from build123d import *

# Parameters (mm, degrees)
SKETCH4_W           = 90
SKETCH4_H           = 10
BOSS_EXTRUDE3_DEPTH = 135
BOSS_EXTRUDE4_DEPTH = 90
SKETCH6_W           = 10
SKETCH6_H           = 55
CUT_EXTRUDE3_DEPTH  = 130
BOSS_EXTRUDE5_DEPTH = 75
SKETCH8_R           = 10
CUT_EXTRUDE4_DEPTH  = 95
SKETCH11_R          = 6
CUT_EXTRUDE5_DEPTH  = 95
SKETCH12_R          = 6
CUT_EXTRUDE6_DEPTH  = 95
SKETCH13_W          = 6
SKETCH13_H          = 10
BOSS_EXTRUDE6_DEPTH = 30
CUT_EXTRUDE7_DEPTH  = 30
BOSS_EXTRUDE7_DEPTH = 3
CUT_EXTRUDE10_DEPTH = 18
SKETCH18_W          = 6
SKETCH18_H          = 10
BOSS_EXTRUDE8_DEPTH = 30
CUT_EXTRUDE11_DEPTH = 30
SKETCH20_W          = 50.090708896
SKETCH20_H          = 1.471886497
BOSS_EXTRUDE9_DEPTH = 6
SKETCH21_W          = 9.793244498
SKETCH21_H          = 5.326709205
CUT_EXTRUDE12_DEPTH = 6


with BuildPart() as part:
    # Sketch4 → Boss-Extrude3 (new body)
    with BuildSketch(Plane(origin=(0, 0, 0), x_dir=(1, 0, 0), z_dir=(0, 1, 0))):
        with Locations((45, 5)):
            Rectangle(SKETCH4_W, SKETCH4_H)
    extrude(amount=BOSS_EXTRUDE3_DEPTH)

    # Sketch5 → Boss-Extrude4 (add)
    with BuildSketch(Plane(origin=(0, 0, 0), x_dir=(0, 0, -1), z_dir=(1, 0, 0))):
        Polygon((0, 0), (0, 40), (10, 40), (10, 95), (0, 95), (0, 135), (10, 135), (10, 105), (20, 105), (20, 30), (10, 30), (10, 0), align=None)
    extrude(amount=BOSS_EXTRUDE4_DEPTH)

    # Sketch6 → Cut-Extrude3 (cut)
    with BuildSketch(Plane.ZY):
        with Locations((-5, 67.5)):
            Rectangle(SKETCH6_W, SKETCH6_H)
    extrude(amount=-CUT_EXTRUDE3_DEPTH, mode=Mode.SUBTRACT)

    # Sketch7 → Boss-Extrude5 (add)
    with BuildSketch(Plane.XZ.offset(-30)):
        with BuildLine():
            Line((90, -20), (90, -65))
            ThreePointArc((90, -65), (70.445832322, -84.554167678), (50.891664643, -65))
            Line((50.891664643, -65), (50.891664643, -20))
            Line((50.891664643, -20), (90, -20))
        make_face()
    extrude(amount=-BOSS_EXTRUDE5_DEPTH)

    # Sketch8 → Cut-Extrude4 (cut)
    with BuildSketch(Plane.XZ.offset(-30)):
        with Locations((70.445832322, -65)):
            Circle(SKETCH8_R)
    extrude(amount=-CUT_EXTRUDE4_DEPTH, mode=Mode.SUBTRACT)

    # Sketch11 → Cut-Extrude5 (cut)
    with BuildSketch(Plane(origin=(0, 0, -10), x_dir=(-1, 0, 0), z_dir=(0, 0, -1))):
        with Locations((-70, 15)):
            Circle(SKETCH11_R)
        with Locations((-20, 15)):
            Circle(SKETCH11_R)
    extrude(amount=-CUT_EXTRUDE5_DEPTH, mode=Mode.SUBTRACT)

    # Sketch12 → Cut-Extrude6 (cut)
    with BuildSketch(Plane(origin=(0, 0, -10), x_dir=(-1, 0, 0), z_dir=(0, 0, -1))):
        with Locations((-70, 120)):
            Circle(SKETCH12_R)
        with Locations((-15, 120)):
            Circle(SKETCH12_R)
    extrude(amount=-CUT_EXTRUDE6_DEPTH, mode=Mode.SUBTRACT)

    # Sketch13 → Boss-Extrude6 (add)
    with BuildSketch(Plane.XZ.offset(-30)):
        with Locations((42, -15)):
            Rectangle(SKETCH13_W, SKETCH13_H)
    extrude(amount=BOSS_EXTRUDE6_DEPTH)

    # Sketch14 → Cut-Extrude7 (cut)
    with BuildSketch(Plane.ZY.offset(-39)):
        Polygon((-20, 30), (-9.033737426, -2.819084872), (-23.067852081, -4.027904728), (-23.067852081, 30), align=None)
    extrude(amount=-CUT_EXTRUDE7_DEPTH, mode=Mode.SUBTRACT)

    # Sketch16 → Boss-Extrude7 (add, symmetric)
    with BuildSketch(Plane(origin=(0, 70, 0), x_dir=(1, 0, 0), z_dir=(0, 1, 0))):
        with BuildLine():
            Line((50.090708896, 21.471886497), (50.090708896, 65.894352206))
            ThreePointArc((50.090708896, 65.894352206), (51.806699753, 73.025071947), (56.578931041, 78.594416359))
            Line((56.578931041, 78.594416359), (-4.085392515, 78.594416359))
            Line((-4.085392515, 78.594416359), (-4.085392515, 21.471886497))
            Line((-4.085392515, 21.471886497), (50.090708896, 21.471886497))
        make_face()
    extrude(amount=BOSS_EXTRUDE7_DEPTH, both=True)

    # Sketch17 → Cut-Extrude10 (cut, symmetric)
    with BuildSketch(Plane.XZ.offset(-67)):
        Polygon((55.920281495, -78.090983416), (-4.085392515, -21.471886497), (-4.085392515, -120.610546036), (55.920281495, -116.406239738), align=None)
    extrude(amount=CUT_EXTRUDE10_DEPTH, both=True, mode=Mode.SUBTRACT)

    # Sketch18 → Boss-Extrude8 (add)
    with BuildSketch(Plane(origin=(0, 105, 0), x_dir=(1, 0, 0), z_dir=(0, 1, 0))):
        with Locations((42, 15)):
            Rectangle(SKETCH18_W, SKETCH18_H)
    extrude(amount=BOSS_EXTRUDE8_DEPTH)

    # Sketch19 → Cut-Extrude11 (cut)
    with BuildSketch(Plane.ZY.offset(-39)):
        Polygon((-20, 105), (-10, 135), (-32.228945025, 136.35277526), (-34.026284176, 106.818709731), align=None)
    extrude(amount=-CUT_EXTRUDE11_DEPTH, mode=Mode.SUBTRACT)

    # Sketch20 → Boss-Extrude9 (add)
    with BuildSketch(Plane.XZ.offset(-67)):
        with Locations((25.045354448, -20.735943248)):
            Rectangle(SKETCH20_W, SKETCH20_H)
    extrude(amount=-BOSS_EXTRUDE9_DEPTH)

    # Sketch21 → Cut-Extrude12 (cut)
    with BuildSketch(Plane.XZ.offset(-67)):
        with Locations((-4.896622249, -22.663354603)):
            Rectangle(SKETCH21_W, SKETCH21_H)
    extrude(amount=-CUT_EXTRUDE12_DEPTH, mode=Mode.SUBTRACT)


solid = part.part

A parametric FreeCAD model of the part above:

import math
import FreeCAD as App
import Part
import Sketcher
from FreeCAD import Vector

doc = App.newDocument("Part")
params = doc.addObject("Spreadsheet::Sheet", "Params")
for row, (alias, value) in enumerate([
    ("sketch1_width", "90 mm"),
    ("sketch1_height", "10 mm"),
    ("pad1_length", "135 mm"),
    ("sketch2_width", "40 mm"),
    ("sketch2_width2", "30 mm"),
    ("sketch2_width3", "75 mm"),
    ("sketch2_height", "10 mm"),
    ("pad2_length", "90 mm"),
    ("sketch3_width", "55 mm"),
    ("sketch3_height", "10 mm"),
    ("pocket1_length", "130 mm"),
    ("sketch4_height", "45 mm"),
    ("pad3_length", "75 mm"),
    ("sketch5_diameter", "20 mm"),
    ("pocket2_length", "95 mm"),
    ("sketch6_diameter", "12 mm"),
    ("pocket3_length", "95 mm"),
    ("sketch7_diameter", "12 mm"),
    ("pocket4_length", "95 mm"),
    ("sketch8_width", "6 mm"),
    ("sketch8_height", "10 mm"),
    ("pad4_length", "30 mm"),
    ("pocket5_length", "30 mm"),
    ("pad5_length", "6 mm"),
    ("pocket6_length", "36 mm"),
    ("sketch12_width", "6 mm"),
    ("sketch12_height", "10 mm"),
    ("pad6_length", "30 mm"),
    ("pocket7_length", "30 mm"),
    ("pad7_length", "6 mm"),
    ("pocket8_length", "6 mm"),
], start=1):
    params.set(f"A{row}", alias)
    params.set(f"B{row}", "=" + value)
    params.setAlias(f"B{row}", alias)

body = doc.addObject("PartDesign::Body", "Body")
body.AllowCompound = True

sketch1 = doc.addObject("Sketcher::SketchObject", "Sketch")
body.addObject(sketch1)
sketch1.AttachmentSupport = (doc.XZ_Plane, [""])
sketch1.MapMode = "FlatFace"
sketch1.addGeometry([
    Part.LineSegment(Vector(0, -10, 0), Vector(0, 0, 0)),
    Part.LineSegment(Vector(0, 0, 0), Vector(90, 0, 0)),
    Part.LineSegment(Vector(90, 0, 0), Vector(90, -10, 0)),
    Part.LineSegment(Vector(90, -10, 0), Vector(0, -10, 0)),
], False)
sketch1.addConstraint([
    Sketcher.Constraint("Coincident", 0, 2, 1, 1),
    Sketcher.Constraint("Coincident", 1, 2, 2, 1),
    Sketcher.Constraint("Coincident", 2, 2, 3, 1),
    Sketcher.Constraint("Coincident", 3, 2, 0, 1),
    Sketcher.Constraint("Vertical", 0),
    Sketcher.Constraint("Horizontal", 1),
    Sketcher.Constraint("Vertical", 2),
    Sketcher.Constraint("Horizontal", 3),
    Sketcher.Constraint("Coincident", 0, 2, -1, 1),
    Sketcher.Constraint("DistanceX", 1, 1, 1, 2, 90.0),
    Sketcher.Constraint("DistanceY", 0, 1, 0, 2, 10.0),
])
sketch1.setExpression("Constraints[9]", "Params.sketch1_width")
sketch1.setExpression("Constraints[10]", "Params.sketch1_height")
pad1 = doc.addObject("PartDesign::Pad", "Pad")
body.addObject(pad1)
pad1.Profile = sketch1
pad1.setExpression("Length", "Params.pad1_length")
pad1.Reversed = True

sketch2 = doc.addObject("Sketcher::SketchObject", "Sketch001")
body.addObject(sketch2)
sketch2.AttachmentSupport = (doc.YZ_Plane, [""])
sketch2.MapMode = "FlatFace"
sketch2.addGeometry([
    Part.LineSegment(Vector(40, 0, 0), Vector(0, 0, 0)),
    Part.LineSegment(Vector(0, 0, 0), Vector(0, -10, 0)),
    Part.LineSegment(Vector(0, -10, 0), Vector(30, -10, 0)),
    Part.LineSegment(Vector(30, -10, 0), Vector(30, -20, 0)),
    Part.LineSegment(Vector(30, -20, 0), Vector(105, -20, 0)),
    Part.LineSegment(Vector(105, -20, 0), Vector(105, -10, 0)),
    Part.LineSegment(Vector(105, -10, 0), Vector(135, -10, 0)),
    Part.LineSegment(Vector(135, -10, 0), Vector(135, 0, 0)),
    Part.LineSegment(Vector(135, 0, 0), Vector(95, 0, 0)),
    Part.LineSegment(Vector(95, 0, 0), Vector(95, -10, 0)),
    Part.LineSegment(Vector(95, -10, 0), Vector(40, -10, 0)),
    Part.LineSegment(Vector(40, -10, 0), Vector(40, 0, 0)),
], False)
sketch2.addConstraint([
    Sketcher.Constraint("Coincident", 0, 2, 1, 1),
    Sketcher.Constraint("Coincident", 1, 2, 2, 1),
    Sketcher.Constraint("Coincident", 2, 2, 3, 1),
    Sketcher.Constraint("Coincident", 3, 2, 4, 1),
    Sketcher.Constraint("Coincident", 4, 2, 5, 1),
    Sketcher.Constraint("Coincident", 5, 2, 6, 1),
    Sketcher.Constraint("Coincident", 6, 2, 7, 1),
    Sketcher.Constraint("Coincident", 7, 2, 8, 1),
    Sketcher.Constraint("Coincident", 8, 2, 9, 1),
    Sketcher.Constraint("Coincident", 9, 2, 10, 1),
    Sketcher.Constraint("Coincident", 10, 2, 11, 1),
    Sketcher.Constraint("Coincident", 11, 2, 0, 1),
    Sketcher.Constraint("Horizontal", 0),
    Sketcher.Constraint("Vertical", 1),
    Sketcher.Constraint("Horizontal", 2),
    Sketcher.Constraint("Vertical", 3),
    Sketcher.Constraint("Horizontal", 4),
    Sketcher.Constraint("Vertical", 5),
    Sketcher.Constraint("Horizontal", 6),
    Sketcher.Constraint("Vertical", 7),
    Sketcher.Constraint("Horizontal", 8),
    Sketcher.Constraint("Vertical", 9),
    Sketcher.Constraint("Horizontal", 10),
    Sketcher.Constraint("Vertical", 11),
    Sketcher.Constraint("Coincident", 0, 2, -1, 1),
    Sketcher.Constraint("PointOnObject", 7, 2, -1),
    Sketcher.Constraint("Horizontal", 2, 2, 5, 2),
    Sketcher.Constraint("Horizontal", 6, 2, 9, 2),
    Sketcher.Constraint("Equal", 2, 6),
    Sketcher.Constraint("Equal", 0, 8),
    Sketcher.Constraint("Equal", 1, 3),
    Sketcher.Constraint("DistanceX", 0, 2, 0, 1, 40.0),
    Sketcher.Constraint("DistanceX", 2, 1, 2, 2, 30.0),
    Sketcher.Constraint("DistanceX", 4, 1, 4, 2, 75.0),
    Sketcher.Constraint("DistanceY", 1, 2, 1, 1, 10.0),
])
sketch2.setExpression("Constraints[31]", "Params.sketch2_width")
sketch2.setExpression("Constraints[32]", "Params.sketch2_width2")
sketch2.setExpression("Constraints[33]", "Params.sketch2_width3")
sketch2.setExpression("Constraints[34]", "Params.sketch2_height")
pad2 = doc.addObject("PartDesign::Pad", "Pad001")
body.addObject(pad2)
pad2.Profile = sketch2
pad2.setExpression("Length", "Params.pad2_length")

sketch3 = doc.addObject("Sketcher::SketchObject", "Sketch002")
body.addObject(sketch3)
sketch3.AttachmentSupport = (doc.YZ_Plane, [""])
sketch3.MapMode = "FlatFace"
sketch3.addGeometry([
    Part.LineSegment(Vector(95, -10, 0), Vector(40, -10, 0)),
    Part.LineSegment(Vector(40, -10, 0), Vector(40, 0, 0)),
    Part.LineSegment(Vector(40, 0, 0), Vector(95, 0, 0)),
    Part.LineSegment(Vector(95, 0, 0), Vector(95, -10, 0)),
], False)
sketch3.addConstraint([
    Sketcher.Constraint("Coincident", 0, 2, 1, 1),
    Sketcher.Constraint("Coincident", 1, 2, 2, 1),
    Sketcher.Constraint("Coincident", 2, 2, 3, 1),
    Sketcher.Constraint("Coincident", 3, 2, 0, 1),
    Sketcher.Constraint("Horizontal", 0),
    Sketcher.Constraint("Vertical", 1),
    Sketcher.Constraint("Horizontal", 2),
    Sketcher.Constraint("Vertical", 3),
    Sketcher.Constraint("PointOnObject", 1, 2, -1),
    Sketcher.Constraint("DistanceX", 0, 2, 0, 1, 55.0),
    Sketcher.Constraint("DistanceY", 1, 1, 1, 2, 10.0),
    Sketcher.Constraint("DistanceX", -1, 1, 0, 2, 40.0),
])
sketch3.setExpression("Constraints[9]", "Params.sketch3_width")
sketch3.setExpression("Constraints[10]", "Params.sketch3_height")
pocket1 = doc.addObject("PartDesign::Pocket", "Pocket")
body.addObject(pocket1)
pocket1.Profile = sketch3
pocket1.setExpression("Length", "Params.pocket1_length")
pocket1.Reversed = True

sketch4 = doc.addObject("Sketcher::SketchObject", "Sketch003")
body.addObject(sketch4)
sketch4.AttachmentSupport = (doc.XZ_Plane, [""])
sketch4.MapMode = "FlatFace"
sketch4.AttachmentOffset = App.Placement(Vector(0, 0, -30), App.Rotation())
sketch4.addGeometry([
    Part.LineSegment(Vector(90, -65, 0), Vector(90, -20, 0)),
    Part.LineSegment(Vector(90, -20, 0), Vector(50.891665, -20, 0)),
    Part.LineSegment(Vector(50.891665, -20, 0), Vector(50.891665, -65, 0)),
    Part.ArcOfCircle(Part.Circle(Vector(70.445832, -65, 0), Vector(0, 0, 1), 19.554168), math.radians(180), math.radians(360)),
], False)
sketch4.addConstraint([
    Sketcher.Constraint("Coincident", 0, 2, 1, 1),
    Sketcher.Constraint("Coincident", 1, 2, 2, 1),
    Sketcher.Constraint("Tangent", 2, 2, 3, 1),
    Sketcher.Constraint("Tangent", 3, 2, 0, 1),
    Sketcher.Constraint("Vertical", 0),
    Sketcher.Constraint("Horizontal", 1),
    Sketcher.Constraint("Vertical", 2),
    Sketcher.Constraint("DistanceY", 0, 1, 0, 2, 45.0),
    Sketcher.Constraint("DistanceY", 3, 3, -1, 1, 65.0),
    Sketcher.Constraint("DistanceX", -1, 1, 0, 2, 90.0),
    Sketcher.Constraint("Radius", 3, 19.554168),
])
sketch4.setExpression("Constraints[7]", "Params.sketch4_height")
pad3 = doc.addObject("PartDesign::Pad", "Pad002")
body.addObject(pad3)
pad3.Profile = sketch4
pad3.setExpression("Length", "Params.pad3_length")
pad3.Reversed = True

sketch5 = doc.addObject("Sketcher::SketchObject", "Sketch004")
body.addObject(sketch5)
sketch5.AttachmentSupport = (doc.XZ_Plane, [""])
sketch5.MapMode = "FlatFace"
sketch5.AttachmentOffset = App.Placement(Vector(0, 0, -30), App.Rotation())
sketch5.addGeometry(Part.Circle(Vector(70.445832, -65, 0), Vector(0, 0, 1), 10), False)
sketch5.addConstraint([
    Sketcher.Constraint("Diameter", 0, 20.0),
    Sketcher.Constraint("DistanceY", 0, 3, -1, 1, 65.0),
    Sketcher.Constraint("DistanceX", -1, 1, 0, 3, 70.445832),
])
sketch5.setExpression("Constraints[0]", "Params.sketch5_diameter")
pocket2 = doc.addObject("PartDesign::Pocket", "Pocket001")
body.addObject(pocket2)
pocket2.Profile = sketch5
pocket2.setExpression("Length", "Params.pocket2_length")

sketch6 = doc.addObject("Sketcher::SketchObject", "Sketch005")
body.addObject(sketch6)
sketch6.AttachmentSupport = (doc.XY_Plane, [""])
sketch6.MapMode = "FlatFace"
sketch6.AttachmentOffset = App.Placement(Vector(0, 0, -10), App.Rotation())
sketch6.addGeometry([
    Part.Circle(Vector(70, 15, 0), Vector(0, 0, 1), 6),
    Part.Circle(Vector(20, 15, 0), Vector(0, 0, 1), 6),
], False)
sketch6.addConstraint([
    Sketcher.Constraint("Equal", 0, 1),
    Sketcher.Constraint("Horizontal", 0, 3, 1, 3),
    Sketcher.Constraint("Diameter", 0, 12.0),
    Sketcher.Constraint("DistanceX", -1, 1, 0, 3, 70.0),
    Sketcher.Constraint("DistanceY", -1, 1, 0, 3, 15.0),
    Sketcher.Constraint("DistanceX", -1, 1, 1, 3, 20.0),
])
sketch6.setExpression("Constraints[2]", "Params.sketch6_diameter")
pocket3 = doc.addObject("PartDesign::Pocket", "Pocket002")
body.addObject(pocket3)
pocket3.Profile = sketch6
pocket3.setExpression("Length", "Params.pocket3_length")
pocket3.Reversed = True

sketch7 = doc.addObject("Sketcher::SketchObject", "Sketch006")
body.addObject(sketch7)
sketch7.AttachmentSupport = (doc.XY_Plane, [""])
sketch7.MapMode = "FlatFace"
sketch7.AttachmentOffset = App.Placement(Vector(0, 0, -10), App.Rotation())
sketch7.addGeometry([
    Part.Circle(Vector(70, 120, 0), Vector(0, 0, 1), 6),
    Part.Circle(Vector(15, 120, 0), Vector(0, 0, 1), 6),
], False)
sketch7.addConstraint([
    Sketcher.Constraint("Equal", 0, 1),
    Sketcher.Constraint("Horizontal", 0, 3, 1, 3),
    Sketcher.Constraint("Diameter", 0, 12.0),
    Sketcher.Constraint("DistanceX", -1, 1, 0, 3, 70.0),
    Sketcher.Constraint("DistanceY", -1, 1, 0, 3, 120.0),
    Sketcher.Constraint("DistanceX", -1, 1, 1, 3, 15.0),
])
sketch7.setExpression("Constraints[2]", "Params.sketch7_diameter")
pocket4 = doc.addObject("PartDesign::Pocket", "Pocket003")
body.addObject(pocket4)
pocket4.Profile = sketch7
pocket4.setExpression("Length", "Params.pocket4_length")
pocket4.Reversed = True

sketch8 = doc.addObject("Sketcher::SketchObject", "Sketch007")
body.addObject(sketch8)
sketch8.AttachmentSupport = (doc.XZ_Plane, [""])
sketch8.MapMode = "FlatFace"
sketch8.AttachmentOffset = App.Placement(Vector(0, 0, -30), App.Rotation())
sketch8.addGeometry([
    Part.LineSegment(Vector(39, -10, 0), Vector(39, -20, 0)),
    Part.LineSegment(Vector(39, -20, 0), Vector(45, -20, 0)),
    Part.LineSegment(Vector(45, -20, 0), Vector(45, -10, 0)),
    Part.LineSegment(Vector(45, -10, 0), Vector(39, -10, 0)),
], False)
sketch8.addConstraint([
    Sketcher.Constraint("Coincident", 0, 2, 1, 1),
    Sketcher.Constraint("Coincident", 1, 2, 2, 1),
    Sketcher.Constraint("Coincident", 2, 2, 3, 1),
    Sketcher.Constraint("Coincident", 3, 2, 0, 1),
    Sketcher.Constraint("Vertical", 0),
    Sketcher.Constraint("Horizontal", 1),
    Sketcher.Constraint("Vertical", 2),
    Sketcher.Constraint("Horizontal", 3),
    Sketcher.Constraint("DistanceX", 1, 1, 1, 2, 6.0),
    Sketcher.Constraint("DistanceY", 0, 2, 0, 1, 10.0),
    Sketcher.Constraint("DistanceX", -1, 1, 0, 2, 39.0),
    Sketcher.Constraint("DistanceY", 0, 2, -1, 1, 20.0),
])
sketch8.setExpression("Constraints[8]", "Params.sketch8_width")
sketch8.setExpression("Constraints[9]", "Params.sketch8_height")
pad4 = doc.addObject("PartDesign::Pad", "Pad003")
body.addObject(pad4)
pad4.Profile = sketch8
pad4.setExpression("Length", "Params.pad4_length")

sketch9 = doc.addObject("Sketcher::SketchObject", "Sketch008")
body.addObject(sketch9)
sketch9.AttachmentSupport = (doc.YZ_Plane, [""])
sketch9.MapMode = "FlatFace"
sketch9.AttachmentOffset = App.Placement(Vector(0, 0, 39), App.Rotation())
sketch9.addGeometry([
    Part.LineSegment(Vector(-2.819085, -9.033737, 0), Vector(30, -20, 0)),
    Part.LineSegment(Vector(30, -20, 0), Vector(30, -23.067852, 0)),
    Part.LineSegment(Vector(30, -23.067852, 0), Vector(-4.027905, -23.067852, 0)),
    Part.LineSegment(Vector(-4.027905, -23.067852, 0), Vector(-2.819085, -9.033737, 0)),
], False)
sketch9.addConstraint([
    Sketcher.Constraint("Coincident", 0, 2, 1, 1),
    Sketcher.Constraint("Coincident", 1, 2, 2, 1),
    Sketcher.Constraint("Coincident", 2, 2, 3, 1),
    Sketcher.Constraint("Coincident", 3, 2, 0, 1),
    Sketcher.Constraint("Vertical", 1),
    Sketcher.Constraint("Horizontal", 2),
    Sketcher.Constraint("DistanceX", -1, 1, 0, 2, 30.0),
    Sketcher.Constraint("DistanceY", 0, 2, -1, 1, 20.0),
    Sketcher.Constraint("Distance", 3, 14.086079),
    Sketcher.Constraint("DistanceX", 2, 2, 2, 1, 34.027905),
    Sketcher.Constraint("DistanceY", 1, 2, 1, 1, 3.067852),
    Sketcher.Constraint("DistanceX", 2, 2, 3, 2, 1.20882),
])
pocket5 = doc.addObject("PartDesign::Pocket", "Pocket004")
body.addObject(pocket5)
pocket5.Profile = sketch9
pocket5.setExpression("Length", "Params.pocket5_length")
pocket5.Reversed = True

sketch10 = doc.addObject("Sketcher::SketchObject", "Sketch009")
body.addObject(sketch10)
sketch10.AttachmentSupport = (doc.XZ_Plane, [""])
sketch10.MapMode = "FlatFace"
sketch10.AttachmentOffset = App.Placement(Vector(0, 0, -70), App.Rotation())
sketch10.addGeometry([
    Part.LineSegment(Vector(50.090709, -21.471886, 0), Vector(50.090709, -65.894352, 0)),
    Part.ArcOfCircle(Part.Circle(Vector(65.76439, -65.894352, 0), Vector(0, 0, 1), 15.673682), math.radians(180), math.radians(234.123256)),
    Part.LineSegment(Vector(56.578931, -78.594416, 0), Vector(-4.085393, -78.594416, 0)),
    Part.LineSegment(Vector(-4.085393, -78.594416, 0), Vector(-4.085393, -21.471886, 0)),
    Part.LineSegment(Vector(-4.085393, -21.471886, 0), Vector(50.090709, -21.471886, 0)),
], False)
sketch10.addConstraint([
    Sketcher.Constraint("Tangent", 0, 2, 1, 1),
    Sketcher.Constraint("Coincident", 1, 2, 2, 1),
    Sketcher.Constraint("Coincident", 2, 2, 3, 1),
    Sketcher.Constraint("Coincident", 3, 2, 4, 1),
    Sketcher.Constraint("Coincident", 4, 2, 0, 1),
    Sketcher.Constraint("Vertical", 0),
    Sketcher.Constraint("Horizontal", 2),
    Sketcher.Constraint("Vertical", 3),
    Sketcher.Constraint("Horizontal", 4),
    Sketcher.Constraint("Radius", 1, 15.673682),
    Sketcher.Constraint("DistanceX", 4, 1, 4, 2, 54.176101),
    Sketcher.Constraint("DistanceY", 3, 1, 3, 2, 57.12253),
    Sketcher.Constraint("DistanceX", 2, 2, 2, 1, 60.664324),
    Sketcher.Constraint("DistanceX", -1, 1, 1, 3, 65.76439),
    Sketcher.Constraint("DistanceY", 1, 3, -1, 1, 65.894352),
])
pad5 = doc.addObject("PartDesign::Pad", "Pad004")
body.addObject(pad5)
pad5.Profile = sketch10
pad5.setExpression("Length", "Params.pad5_length")
pad5.Midplane = True

sketch11 = doc.addObject("Sketcher::SketchObject", "Sketch010")
body.addObject(sketch11)
sketch11.AttachmentSupport = (doc.XZ_Plane, [""])
sketch11.MapMode = "FlatFace"
sketch11.AttachmentOffset = App.Placement(Vector(0, 0, -67), App.Rotation())
sketch11.addGeometry([
    Part.LineSegment(Vector(55.920281, -78.090983, 0), Vector(-4.085393, -21.471886, 0)),
    Part.LineSegment(Vector(-4.085393, -21.471886, 0), Vector(-4.085393, -120.610546, 0)),
    Part.LineSegment(Vector(-4.085393, -120.610546, 0), Vector(55.920281, -116.40624, 0)),
    Part.LineSegment(Vector(55.920281, -116.40624, 0), Vector(55.920281, -78.090983, 0)),
], False)
sketch11.addConstraint([
    Sketcher.Constraint("Coincident", 0, 2, 1, 1),
    Sketcher.Constraint("Coincident", 1, 2, 2, 1),
    Sketcher.Constraint("Coincident", 2, 2, 3, 1),
    Sketcher.Constraint("Coincident", 3, 2, 0, 1),
    Sketcher.Constraint("Vertical", 1),
    Sketcher.Constraint("Vertical", 3),
    Sketcher.Constraint("DistanceY", 1, 2, 1, 1, 99.13866),
    Sketcher.Constraint("Distance", 2, 60.152781),
    Sketcher.Constraint("DistanceY", 3, 1, 3, 2, 38.315256),
    Sketcher.Constraint("DistanceX", -1, 1, 2, 2, 55.920281),
    Sketcher.Constraint("DistanceY", 2, 2, -1, 1, 116.40624),
    Sketcher.Constraint("Distance", 0, 82.500928),
])
pocket6 = doc.addObject("PartDesign::Pocket", "Pocket005")
body.addObject(pocket6)
pocket6.Profile = sketch11
pocket6.setExpression("Length", "Params.pocket6_length")
pocket6.Midplane = True

sketch12 = doc.addObject("Sketcher::SketchObject", "Sketch011")
body.addObject(sketch12)
sketch12.AttachmentSupport = (doc.XZ_Plane, [""])
sketch12.MapMode = "FlatFace"
sketch12.AttachmentOffset = App.Placement(Vector(0, 0, -105), App.Rotation())
sketch12.addGeometry([
    Part.LineSegment(Vector(39, -20, 0), Vector(39, -10, 0)),
    Part.LineSegment(Vector(39, -10, 0), Vector(45, -10, 0)),
    Part.LineSegment(Vector(45, -10, 0), Vector(45, -20, 0)),
    Part.LineSegment(Vector(45, -20, 0), Vector(39, -20, 0)),
], False)
sketch12.addConstraint([
    Sketcher.Constraint("Coincident", 0, 2, 1, 1),
    Sketcher.Constraint("Coincident", 1, 2, 2, 1),
    Sketcher.Constraint("Coincident", 2, 2, 3, 1),
    Sketcher.Constraint("Coincident", 3, 2, 0, 1),
    Sketcher.Constraint("Vertical", 0),
    Sketcher.Constraint("Horizontal", 1),
    Sketcher.Constraint("Vertical", 2),
    Sketcher.Constraint("Horizontal", 3),
    Sketcher.Constraint("DistanceX", 1, 1, 1, 2, 6.0),
    Sketcher.Constraint("DistanceY", 0, 1, 0, 2, 10.0),
    Sketcher.Constraint("DistanceX", -1, 1, 0, 2, 39.0),
    Sketcher.Constraint("DistanceY", 0, 2, -1, 1, 10.0),
])
sketch12.setExpression("Constraints[8]", "Params.sketch12_width")
sketch12.setExpression("Constraints[9]", "Params.sketch12_height")
pad6 = doc.addObject("PartDesign::Pad", "Pad005")
body.addObject(pad6)
pad6.Profile = sketch12
pad6.setExpression("Length", "Params.pad6_length")
pad6.Reversed = True

sketch13 = doc.addObject("Sketcher::SketchObject", "Sketch012")
body.addObject(sketch13)
sketch13.AttachmentSupport = (doc.YZ_Plane, [""])
sketch13.MapMode = "FlatFace"
sketch13.AttachmentOffset = App.Placement(Vector(0, 0, 39), App.Rotation())
sketch13.addGeometry([
    Part.LineSegment(Vector(105, -20, 0), Vector(135, -10, 0)),
    Part.LineSegment(Vector(135, -10, 0), Vector(136.352775, -32.228945, 0)),
    Part.LineSegment(Vector(136.352775, -32.228945, 0), Vector(106.81871, -34.026284, 0)),
    Part.LineSegment(Vector(106.81871, -34.026284, 0), Vector(105, -20, 0)),
], False)
sketch13.addConstraint([
    Sketcher.Constraint("Coincident", 0, 2, 1, 1),
    Sketcher.Constraint("Coincident", 1, 2, 2, 1),
    Sketcher.Constraint("Coincident", 2, 2, 3, 1),
    Sketcher.Constraint("Coincident", 3, 2, 0, 1),
    Sketcher.Constraint("Perpendicular", 1, 2),
    Sketcher.Constraint("DistanceX", -1, 1, 0, 2, 135.0),
    Sketcher.Constraint("DistanceY", 0, 2, -1, 1, 10.0),
    Sketcher.Constraint("DistanceX", -1, 1, 3, 2, 105.0),
    Sketcher.Constraint("DistanceY", 3, 2, -1, 1, 20.0),
    Sketcher.Constraint("Distance", 1, 22.27007),
    Sketcher.Constraint("DistanceX", -1, 1, 2, 2, 106.81871),
    Sketcher.Constraint("DistanceY", 2, 2, 1, 2, 1.797339),
])
pocket7 = doc.addObject("PartDesign::Pocket", "Pocket006")
body.addObject(pocket7)
pocket7.Profile = sketch13
pocket7.setExpression("Length", "Params.pocket7_length")
pocket7.Reversed = True

sketch14 = doc.addObject("Sketcher::SketchObject", "Sketch013")
body.addObject(sketch14)
sketch14.AttachmentSupport = (doc.XZ_Plane, [""])
sketch14.MapMode = "FlatFace"
sketch14.AttachmentOffset = App.Placement(Vector(0, 0, -67), App.Rotation())
sketch14.addGeometry([
    Part.LineSegment(Vector(0, -20, 0), Vector(0, -21.471886, 0)),
    Part.LineSegment(Vector(0, -21.471886, 0), Vector(50.090709, -21.471886, 0)),
    Part.LineSegment(Vector(50.090709, -21.471886, 0), Vector(50.090709, -20, 0)),
    Part.LineSegment(Vector(50.090709, -20, 0), Vector(0, -20, 0)),
], False)
sketch14.addConstraint([
    Sketcher.Constraint("Coincident", 0, 2, 1, 1),
    Sketcher.Constraint("Coincident", 1, 2, 2, 1),
    Sketcher.Constraint("Coincident", 2, 2, 3, 1),
    Sketcher.Constraint("Coincident", 3, 2, 0, 1),
    Sketcher.Constraint("Vertical", 0),
    Sketcher.Constraint("Horizontal", 1),
    Sketcher.Constraint("Vertical", 2),
    Sketcher.Constraint("Horizontal", 3),
    Sketcher.Constraint("PointOnObject", 0, 2, -2),
    Sketcher.Constraint("DistanceY", 2, 2, -1, 1, 20.0),
    Sketcher.Constraint("DistanceX", 1, 1, 1, 2, 50.090709),
    Sketcher.Constraint("DistanceY", 0, 2, 0, 1, 1.471886),
])
pad7 = doc.addObject("PartDesign::Pad", "Pad006")
body.addObject(pad7)
pad7.Profile = sketch14
pad7.setExpression("Length", "Params.pad7_length")
pad7.Reversed = True

sketch15 = doc.addObject("Sketcher::SketchObject", "Sketch014")
body.addObject(sketch15)
sketch15.AttachmentSupport = (doc.XZ_Plane, [""])
sketch15.MapMode = "FlatFace"
sketch15.AttachmentOffset = App.Placement(Vector(0, 0, -67), App.Rotation())
sketch15.addGeometry([
    Part.LineSegment(Vector(-9.793244, -20, 0), Vector(-9.793244, -25.326709, 0)),
    Part.LineSegment(Vector(-9.793244, -25.326709, 0), Vector(0, -25.326709, 0)),
    Part.LineSegment(Vector(0, -25.326709, 0), Vector(0, -20, 0)),
    Part.LineSegment(Vector(0, -20, 0), Vector(-9.793244, -20, 0)),
], False)
sketch15.addConstraint([
    Sketcher.Constraint("Coincident", 0, 2, 1, 1),
    Sketcher.Constraint("Coincident", 1, 2, 2, 1),
    Sketcher.Constraint("Coincident", 2, 2, 3, 1),
    Sketcher.Constraint("Coincident", 3, 2, 0, 1),
    Sketcher.Constraint("Vertical", 0),
    Sketcher.Constraint("Horizontal", 1),
    Sketcher.Constraint("Vertical", 2),
    Sketcher.Constraint("Horizontal", 3),
    Sketcher.Constraint("PointOnObject", 1, 2, -2),
    Sketcher.Constraint("DistanceY", 2, 2, -1, 1, 20.0),
    Sketcher.Constraint("DistanceY", 0, 2, 0, 1, 5.326709),
    Sketcher.Constraint("DistanceX", 1, 1, 1, 2, 9.793244),
])
pocket8 = doc.addObject("PartDesign::Pocket", "Pocket007")
body.addObject(pocket8)
pocket8.Profile = sketch15
pocket8.setExpression("Length", "Params.pocket8_length")

doc.recompute()
